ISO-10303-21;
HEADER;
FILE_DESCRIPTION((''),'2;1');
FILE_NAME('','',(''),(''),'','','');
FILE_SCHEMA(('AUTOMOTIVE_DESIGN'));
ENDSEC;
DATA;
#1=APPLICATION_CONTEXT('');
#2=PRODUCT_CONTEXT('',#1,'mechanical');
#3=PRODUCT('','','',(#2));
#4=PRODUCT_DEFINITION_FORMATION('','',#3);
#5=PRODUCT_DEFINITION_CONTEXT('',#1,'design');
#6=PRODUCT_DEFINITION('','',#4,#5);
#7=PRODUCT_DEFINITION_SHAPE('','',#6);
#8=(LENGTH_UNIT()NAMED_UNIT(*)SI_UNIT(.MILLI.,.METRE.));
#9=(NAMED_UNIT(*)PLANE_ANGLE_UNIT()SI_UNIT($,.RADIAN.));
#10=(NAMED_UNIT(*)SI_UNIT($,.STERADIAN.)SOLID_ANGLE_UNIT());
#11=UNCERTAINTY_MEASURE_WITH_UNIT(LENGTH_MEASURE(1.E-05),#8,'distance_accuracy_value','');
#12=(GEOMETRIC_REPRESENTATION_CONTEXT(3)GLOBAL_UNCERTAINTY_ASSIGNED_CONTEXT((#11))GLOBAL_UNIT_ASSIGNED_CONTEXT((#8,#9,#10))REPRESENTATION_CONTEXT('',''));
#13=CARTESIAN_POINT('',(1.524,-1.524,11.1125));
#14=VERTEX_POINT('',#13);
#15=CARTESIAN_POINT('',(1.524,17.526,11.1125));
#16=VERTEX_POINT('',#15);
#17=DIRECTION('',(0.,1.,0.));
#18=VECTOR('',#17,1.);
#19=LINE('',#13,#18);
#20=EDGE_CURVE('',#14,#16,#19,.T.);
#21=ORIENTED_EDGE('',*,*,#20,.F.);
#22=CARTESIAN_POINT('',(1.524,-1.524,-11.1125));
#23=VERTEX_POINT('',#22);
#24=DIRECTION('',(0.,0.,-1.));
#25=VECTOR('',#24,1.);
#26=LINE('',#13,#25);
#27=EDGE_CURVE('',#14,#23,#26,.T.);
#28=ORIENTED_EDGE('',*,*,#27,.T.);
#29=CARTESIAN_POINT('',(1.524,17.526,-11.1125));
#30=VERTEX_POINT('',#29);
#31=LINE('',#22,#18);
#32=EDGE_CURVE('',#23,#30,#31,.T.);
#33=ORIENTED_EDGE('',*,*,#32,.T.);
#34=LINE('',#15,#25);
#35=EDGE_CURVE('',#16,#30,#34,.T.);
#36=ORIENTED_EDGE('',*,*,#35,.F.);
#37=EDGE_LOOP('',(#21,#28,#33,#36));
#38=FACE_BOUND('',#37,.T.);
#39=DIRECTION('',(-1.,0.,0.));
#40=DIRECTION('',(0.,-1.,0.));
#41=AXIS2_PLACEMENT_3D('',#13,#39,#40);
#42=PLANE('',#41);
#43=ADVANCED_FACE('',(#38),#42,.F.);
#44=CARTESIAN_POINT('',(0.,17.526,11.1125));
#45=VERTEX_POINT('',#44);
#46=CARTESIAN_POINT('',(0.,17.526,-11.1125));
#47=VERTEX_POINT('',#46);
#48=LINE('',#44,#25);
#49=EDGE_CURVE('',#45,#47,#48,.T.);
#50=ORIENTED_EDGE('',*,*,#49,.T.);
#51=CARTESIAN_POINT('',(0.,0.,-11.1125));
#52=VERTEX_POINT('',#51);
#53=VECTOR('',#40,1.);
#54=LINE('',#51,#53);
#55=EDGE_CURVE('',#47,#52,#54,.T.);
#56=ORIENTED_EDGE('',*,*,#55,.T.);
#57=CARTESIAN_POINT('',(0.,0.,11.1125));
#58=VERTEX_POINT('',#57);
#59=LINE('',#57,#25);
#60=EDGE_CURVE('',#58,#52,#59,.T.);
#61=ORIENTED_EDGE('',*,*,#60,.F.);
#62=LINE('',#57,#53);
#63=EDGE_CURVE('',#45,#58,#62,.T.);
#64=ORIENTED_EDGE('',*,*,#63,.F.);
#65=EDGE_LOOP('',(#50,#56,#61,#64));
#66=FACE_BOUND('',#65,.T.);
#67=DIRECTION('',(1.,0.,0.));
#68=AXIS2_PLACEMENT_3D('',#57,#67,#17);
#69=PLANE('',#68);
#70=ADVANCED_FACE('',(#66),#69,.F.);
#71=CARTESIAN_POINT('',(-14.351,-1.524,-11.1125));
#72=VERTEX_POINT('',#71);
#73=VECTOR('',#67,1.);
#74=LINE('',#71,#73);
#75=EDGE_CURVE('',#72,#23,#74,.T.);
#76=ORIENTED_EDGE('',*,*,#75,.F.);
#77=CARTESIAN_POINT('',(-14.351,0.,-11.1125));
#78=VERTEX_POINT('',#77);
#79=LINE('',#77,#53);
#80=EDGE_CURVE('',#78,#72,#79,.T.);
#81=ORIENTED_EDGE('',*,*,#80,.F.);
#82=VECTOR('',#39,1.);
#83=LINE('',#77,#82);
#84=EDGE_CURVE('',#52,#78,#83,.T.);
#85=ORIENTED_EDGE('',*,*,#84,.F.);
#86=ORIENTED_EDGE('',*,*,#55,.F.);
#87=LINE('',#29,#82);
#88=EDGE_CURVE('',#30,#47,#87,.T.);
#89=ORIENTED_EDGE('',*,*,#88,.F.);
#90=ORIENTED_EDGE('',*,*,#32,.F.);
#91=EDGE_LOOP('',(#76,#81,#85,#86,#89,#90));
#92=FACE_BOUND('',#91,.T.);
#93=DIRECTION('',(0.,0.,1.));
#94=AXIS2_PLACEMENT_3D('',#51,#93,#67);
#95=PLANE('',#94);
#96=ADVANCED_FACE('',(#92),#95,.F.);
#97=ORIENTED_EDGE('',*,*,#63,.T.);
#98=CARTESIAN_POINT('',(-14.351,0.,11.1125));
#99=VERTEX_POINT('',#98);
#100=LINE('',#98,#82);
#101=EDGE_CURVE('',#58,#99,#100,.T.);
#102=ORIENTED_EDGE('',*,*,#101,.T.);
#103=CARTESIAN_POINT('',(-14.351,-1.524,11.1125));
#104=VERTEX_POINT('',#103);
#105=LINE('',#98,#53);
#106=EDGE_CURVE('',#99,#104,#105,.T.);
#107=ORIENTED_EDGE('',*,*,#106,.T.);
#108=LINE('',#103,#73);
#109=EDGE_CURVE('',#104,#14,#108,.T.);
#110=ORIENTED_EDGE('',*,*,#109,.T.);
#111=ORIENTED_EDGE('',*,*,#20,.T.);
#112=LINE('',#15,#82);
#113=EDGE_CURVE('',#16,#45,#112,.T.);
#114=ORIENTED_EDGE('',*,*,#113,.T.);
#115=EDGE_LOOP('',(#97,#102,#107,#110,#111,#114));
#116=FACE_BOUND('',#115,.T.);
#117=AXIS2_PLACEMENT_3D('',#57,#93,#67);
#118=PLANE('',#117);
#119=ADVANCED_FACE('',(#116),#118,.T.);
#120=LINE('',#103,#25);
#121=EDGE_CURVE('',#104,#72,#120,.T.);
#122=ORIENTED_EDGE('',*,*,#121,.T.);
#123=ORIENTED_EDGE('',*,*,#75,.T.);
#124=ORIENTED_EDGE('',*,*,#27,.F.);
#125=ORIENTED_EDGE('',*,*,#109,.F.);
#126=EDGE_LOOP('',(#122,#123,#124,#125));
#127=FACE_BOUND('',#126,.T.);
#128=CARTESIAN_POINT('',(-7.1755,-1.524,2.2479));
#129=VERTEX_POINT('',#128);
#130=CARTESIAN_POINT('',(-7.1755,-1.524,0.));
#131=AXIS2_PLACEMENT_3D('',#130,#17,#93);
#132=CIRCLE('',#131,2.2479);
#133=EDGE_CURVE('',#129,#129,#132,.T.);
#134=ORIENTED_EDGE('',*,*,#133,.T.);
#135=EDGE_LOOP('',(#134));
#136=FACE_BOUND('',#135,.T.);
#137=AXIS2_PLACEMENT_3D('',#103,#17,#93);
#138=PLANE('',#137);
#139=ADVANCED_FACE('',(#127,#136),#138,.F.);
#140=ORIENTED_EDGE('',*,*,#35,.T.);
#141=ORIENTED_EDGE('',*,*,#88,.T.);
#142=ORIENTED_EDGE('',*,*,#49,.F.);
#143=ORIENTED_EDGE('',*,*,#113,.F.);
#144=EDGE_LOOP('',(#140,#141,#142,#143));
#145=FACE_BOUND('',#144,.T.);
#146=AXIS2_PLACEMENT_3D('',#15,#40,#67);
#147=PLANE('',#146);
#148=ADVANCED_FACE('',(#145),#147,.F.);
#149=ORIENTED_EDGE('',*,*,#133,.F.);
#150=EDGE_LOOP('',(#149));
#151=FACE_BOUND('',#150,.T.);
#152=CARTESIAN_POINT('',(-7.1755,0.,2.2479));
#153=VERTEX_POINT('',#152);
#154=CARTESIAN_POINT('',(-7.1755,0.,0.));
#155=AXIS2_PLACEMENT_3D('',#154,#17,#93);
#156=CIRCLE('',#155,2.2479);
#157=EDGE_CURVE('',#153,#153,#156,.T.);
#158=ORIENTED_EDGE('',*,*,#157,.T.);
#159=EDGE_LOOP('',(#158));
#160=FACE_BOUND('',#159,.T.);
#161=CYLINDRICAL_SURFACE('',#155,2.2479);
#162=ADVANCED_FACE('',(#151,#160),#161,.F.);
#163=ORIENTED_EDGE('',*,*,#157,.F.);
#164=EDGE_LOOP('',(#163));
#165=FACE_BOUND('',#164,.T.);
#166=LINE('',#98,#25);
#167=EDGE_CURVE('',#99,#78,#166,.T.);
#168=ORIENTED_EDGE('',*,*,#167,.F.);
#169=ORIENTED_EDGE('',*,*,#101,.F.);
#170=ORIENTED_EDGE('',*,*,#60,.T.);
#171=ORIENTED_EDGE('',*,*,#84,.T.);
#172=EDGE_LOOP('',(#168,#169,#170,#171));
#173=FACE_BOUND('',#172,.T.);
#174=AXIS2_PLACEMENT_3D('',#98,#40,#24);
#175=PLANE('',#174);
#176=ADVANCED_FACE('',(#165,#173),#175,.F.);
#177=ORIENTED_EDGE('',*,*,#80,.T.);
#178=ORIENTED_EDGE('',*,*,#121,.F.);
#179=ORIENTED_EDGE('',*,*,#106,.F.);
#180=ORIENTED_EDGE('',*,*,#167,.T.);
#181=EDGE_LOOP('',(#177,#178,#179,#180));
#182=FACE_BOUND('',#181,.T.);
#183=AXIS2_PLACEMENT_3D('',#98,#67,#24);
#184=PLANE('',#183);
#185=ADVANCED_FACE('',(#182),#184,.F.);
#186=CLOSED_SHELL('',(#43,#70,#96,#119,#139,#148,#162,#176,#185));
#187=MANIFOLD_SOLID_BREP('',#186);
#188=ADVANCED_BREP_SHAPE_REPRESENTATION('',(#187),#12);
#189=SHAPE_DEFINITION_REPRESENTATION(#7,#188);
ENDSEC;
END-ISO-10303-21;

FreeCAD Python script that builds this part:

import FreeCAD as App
import Part
import Sketcher
Q = App.Units.Quantity

doc = App.newDocument("Part")
body = doc.addObject("PartDesign::Body", "Body")

# Sketch on XY plane
sketch1 = body.newObject("Sketcher::SketchObject", "Sketch")
sketch1.AttachmentSupport = (doc.getObject("XY_Plane"), [""])
sketch1.MapMode = "FlatFace"
sketch1.addGeometry(Part.LineSegment(App.Vector(0, 0, 0), App.Vector(-14.4, 0, 0)), False)
sketch1.addGeometry(Part.LineSegment(App.Vector(-14.4, 0, 0), App.Vector(-14.4, -1.5, 0)), False)
sketch1.addGeometry(Part.LineSegment(App.Vector(-14.4, -1.5, 0), App.Vector(1.5, -1.5, 0)), False)
sketch1.addGeometry(Part.LineSegment(App.Vector(1.5, -1.5, 0), App.Vector(1.5, 17.5, 0)), False)
sketch1.addGeometry(Part.LineSegment(App.Vector(1.5, 17.5, 0), App.Vector(0, 17.5, 0)), False)
sketch1.addGeometry(Part.LineSegment(App.Vector(0, 17.5, 0), App.Vector(0, 0, 0)), False)
sketch1.addConstraint(Sketcher.Constraint("Coincident", 0, 2, 1, 1))
sketch1.addConstraint(Sketcher.Constraint("Coincident", 1, 2, 2, 1))
sketch1.addConstraint(Sketcher.Constraint("Coincident", 2, 2, 3, 1))
sketch1.addConstraint(Sketcher.Constraint("Coincident", 3, 2, 4, 1))
sketch1.addConstraint(Sketcher.Constraint("Coincident", 4, 2, 5, 1))
sketch1.addConstraint(Sketcher.Constraint("Coincident", 5, 2, 0, 1))
sketch1.addConstraint(Sketcher.Constraint("Horizontal", 0))
sketch1.addConstraint(Sketcher.Constraint("Vertical", 1))
sketch1.addConstraint(Sketcher.Constraint("Horizontal", 2))
sketch1.addConstraint(Sketcher.Constraint("Vertical", 3))
sketch1.addConstraint(Sketcher.Constraint("Horizontal", 4))
sketch1.addConstraint(Sketcher.Constraint("Vertical", 5))
sketch1.addConstraint(Sketcher.Constraint("Coincident", 5, 2, -1, 1))
sketch1.addConstraint(Sketcher.Constraint("Equal", 4, 1))
sketch1.addConstraint(Sketcher.Constraint("DistanceX", 4, 2, 4, 1, Q("0.06 in")))
sketch1.addConstraint(Sketcher.Constraint("DistanceY", 3, 1, 3, 2, Q("0.75 in")))
sketch1.addConstraint(Sketcher.Constraint("DistanceX", 0, 2, 0, 1, Q("0.565 in")))
pad1 = body.newObject("PartDesign::Pad", "Pad")
pad1.Profile = sketch1
pad1.Length = Q("0.875 in")
pad1.Midplane = True

# Sketch on XZ plane
sketch2 = body.newObject("Sketcher::SketchObject", "Sketch001")
sketch2.AttachmentSupport = (doc.getObject("XZ_Plane"), [""])
sketch2.MapMode = "FlatFace"
sketch2.addGeometry(Part.Circle(App.Vector(-7.2, 0, 0), App.Vector(0, 0, 1), 2.2), False)
sketch2.addConstraint(Sketcher.Constraint("PointOnObject", 0, 3, -1))
sketch2.addConstraint(Sketcher.Constraint("Diameter", 0, Q("0.177 in")))
sketch2.addConstraint(Sketcher.Constraint("DistanceX", 0, 3, -1, 1, Q("0.2825 in")))
doc.recompute()
hole = body.newObject("PartDesign::Hole", "Hole")
hole.Profile = sketch2
hole.ThreadType = "None"
hole.Diameter = Q("0.177 in")
hole.DepthType = "Dimension"
hole.Depth = Q("1.25 in")
hole.DrillPoint = "Angled"
hole.DrillPointAngle = 118
hole.Reversed = True

doc.recompute()
